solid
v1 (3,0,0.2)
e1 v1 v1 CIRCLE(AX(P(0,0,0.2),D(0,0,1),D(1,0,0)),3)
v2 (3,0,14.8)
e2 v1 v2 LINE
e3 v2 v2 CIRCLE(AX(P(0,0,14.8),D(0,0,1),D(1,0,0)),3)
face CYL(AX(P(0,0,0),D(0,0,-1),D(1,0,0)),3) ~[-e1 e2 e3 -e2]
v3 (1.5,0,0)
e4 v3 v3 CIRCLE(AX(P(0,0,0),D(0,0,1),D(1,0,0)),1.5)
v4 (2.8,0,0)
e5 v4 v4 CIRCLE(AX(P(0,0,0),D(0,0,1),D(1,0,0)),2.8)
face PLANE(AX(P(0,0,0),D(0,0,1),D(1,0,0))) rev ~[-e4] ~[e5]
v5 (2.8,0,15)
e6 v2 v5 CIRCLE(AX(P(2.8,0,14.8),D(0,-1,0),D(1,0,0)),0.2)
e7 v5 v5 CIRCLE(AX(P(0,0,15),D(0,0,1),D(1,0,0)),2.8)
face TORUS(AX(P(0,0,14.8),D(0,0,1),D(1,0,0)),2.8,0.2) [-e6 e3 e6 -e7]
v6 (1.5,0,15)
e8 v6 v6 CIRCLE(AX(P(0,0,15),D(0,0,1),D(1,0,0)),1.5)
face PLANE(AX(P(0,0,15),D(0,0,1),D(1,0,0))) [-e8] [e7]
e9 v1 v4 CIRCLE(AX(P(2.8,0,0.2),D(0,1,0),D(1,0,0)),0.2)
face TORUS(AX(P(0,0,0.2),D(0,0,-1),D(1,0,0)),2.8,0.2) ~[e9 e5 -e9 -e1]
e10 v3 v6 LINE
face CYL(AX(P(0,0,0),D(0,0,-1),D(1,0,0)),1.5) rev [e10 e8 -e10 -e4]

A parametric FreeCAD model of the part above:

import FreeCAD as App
import Part
import Sketcher


def edges_at(feature, points):
    """Names of the edges that pass closest to the given points."""
    edges = feature.Shape.Edges
    near = lambda p: min(range(len(edges)), key=lambda i: edges[i].distToShape(Part.Vertex(*p))[0])
    return sorted({f"Edge{near(p) + 1}" for p in points})

doc = App.newDocument("Part")
params = doc.addObject("Spreadsheet::Sheet", "Params")
for row, (alias, value) in enumerate([
    ("sketch1_diameter", "6 mm"),
    ("sketch1_diameter2", "3 mm"),
    ("pad1_length", "15 mm"),
    ("fillet_radius", "0.2 mm"),
], start=1):
    params.set(f"A{row}", alias)
    params.set(f"B{row}", "=" + value)
    params.setAlias(f"B{row}", alias)

body = doc.addObject("PartDesign::Body", "Body")

# Sketch on XY plane
sketch1 = doc.addObject("Sketcher::SketchObject", "Sketch")
body.addObject(sketch1)
sketch1.AttachmentSupport = (doc.XY_Plane, [""])
sketch1.MapMode = "FlatFace"
sketch1.addGeometry([
    Part.Circle(App.Vector(0, 0, 0), App.Vector(0, 0, 1), 3),
    Part.Circle(App.Vector(0, 0, 0), App.Vector(0, 0, 1), 1.5),
], False)
sketch1.addConstraint([
    Sketcher.Constraint("Coincident", 0, 3, -1, 1),
    Sketcher.Constraint("Coincident", 1, 3, -1, 1),
    Sketcher.Constraint("Diameter", 0, 6.0),
    Sketcher.Constraint("Diameter", 1, 3.0),
])
sketch1.setExpression("Constraints[2]", "Params.sketch1_diameter")
sketch1.setExpression("Constraints[3]", "Params.sketch1_diameter2")
pad1 = doc.addObject("PartDesign::Pad", "Pad")
body.addObject(pad1)
pad1.Profile = sketch1
pad1.setExpression("Length", "Params.pad1_length")
doc.recompute()

fillet = doc.addObject("PartDesign::Fillet", "Fillet")
body.addObject(fillet)
fillet.Base = (pad1, edges_at(pad1, [(-3, 0, 0), (-3, 0, 15)]))
fillet.setExpression("Radius", "Params.fillet_radius")

doc.recompute()
